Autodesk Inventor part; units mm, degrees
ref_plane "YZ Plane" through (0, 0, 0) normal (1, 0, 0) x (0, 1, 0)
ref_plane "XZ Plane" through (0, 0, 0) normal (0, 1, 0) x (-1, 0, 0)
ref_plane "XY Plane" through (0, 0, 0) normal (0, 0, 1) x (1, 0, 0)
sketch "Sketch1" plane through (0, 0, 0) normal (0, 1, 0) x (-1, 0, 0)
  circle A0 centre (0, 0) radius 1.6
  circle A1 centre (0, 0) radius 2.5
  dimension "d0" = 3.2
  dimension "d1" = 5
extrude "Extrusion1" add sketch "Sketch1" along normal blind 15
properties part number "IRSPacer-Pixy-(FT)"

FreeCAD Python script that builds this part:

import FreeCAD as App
import Part
import Sketcher
from FreeCAD import Vector
Q = App.Units.Quantity

doc = App.newDocument("Part")
body = doc.addObject("PartDesign::Body", "Body")

# Sketch on XZ plane
sketch1 = body.newObject("Sketcher::SketchObject", "Sketch")
sketch1.AttachmentSupport = (doc.getObject("XZ_Plane"), [""])
sketch1.MapMode = "FlatFace"
sketch1.addGeometry(Part.Circle(Vector(0, 0, 0), Vector(0, 0, 1), 2.5), False)
sketch1.addGeometry(Part.Circle(Vector(0, 0, 0), Vector(0, 0, 1), 1.6), False)
sketch1.addConstraint(Sketcher.Constraint("Coincident", 0, 3, -1, 1))
sketch1.addConstraint(Sketcher.Constraint("Coincident", 1, 3, -1, 1))
sketch1.addConstraint(Sketcher.Constraint("Diameter", 0, Q("5 mm")))
sketch1.addConstraint(Sketcher.Constraint("Diameter", 1, Q("3.2 mm")))
pad1 = body.newObject("PartDesign::Pad", "Pad")
pad1.Profile = sketch1
pad1.Length = 15
pad1.Reversed = True

doc.recompute()
